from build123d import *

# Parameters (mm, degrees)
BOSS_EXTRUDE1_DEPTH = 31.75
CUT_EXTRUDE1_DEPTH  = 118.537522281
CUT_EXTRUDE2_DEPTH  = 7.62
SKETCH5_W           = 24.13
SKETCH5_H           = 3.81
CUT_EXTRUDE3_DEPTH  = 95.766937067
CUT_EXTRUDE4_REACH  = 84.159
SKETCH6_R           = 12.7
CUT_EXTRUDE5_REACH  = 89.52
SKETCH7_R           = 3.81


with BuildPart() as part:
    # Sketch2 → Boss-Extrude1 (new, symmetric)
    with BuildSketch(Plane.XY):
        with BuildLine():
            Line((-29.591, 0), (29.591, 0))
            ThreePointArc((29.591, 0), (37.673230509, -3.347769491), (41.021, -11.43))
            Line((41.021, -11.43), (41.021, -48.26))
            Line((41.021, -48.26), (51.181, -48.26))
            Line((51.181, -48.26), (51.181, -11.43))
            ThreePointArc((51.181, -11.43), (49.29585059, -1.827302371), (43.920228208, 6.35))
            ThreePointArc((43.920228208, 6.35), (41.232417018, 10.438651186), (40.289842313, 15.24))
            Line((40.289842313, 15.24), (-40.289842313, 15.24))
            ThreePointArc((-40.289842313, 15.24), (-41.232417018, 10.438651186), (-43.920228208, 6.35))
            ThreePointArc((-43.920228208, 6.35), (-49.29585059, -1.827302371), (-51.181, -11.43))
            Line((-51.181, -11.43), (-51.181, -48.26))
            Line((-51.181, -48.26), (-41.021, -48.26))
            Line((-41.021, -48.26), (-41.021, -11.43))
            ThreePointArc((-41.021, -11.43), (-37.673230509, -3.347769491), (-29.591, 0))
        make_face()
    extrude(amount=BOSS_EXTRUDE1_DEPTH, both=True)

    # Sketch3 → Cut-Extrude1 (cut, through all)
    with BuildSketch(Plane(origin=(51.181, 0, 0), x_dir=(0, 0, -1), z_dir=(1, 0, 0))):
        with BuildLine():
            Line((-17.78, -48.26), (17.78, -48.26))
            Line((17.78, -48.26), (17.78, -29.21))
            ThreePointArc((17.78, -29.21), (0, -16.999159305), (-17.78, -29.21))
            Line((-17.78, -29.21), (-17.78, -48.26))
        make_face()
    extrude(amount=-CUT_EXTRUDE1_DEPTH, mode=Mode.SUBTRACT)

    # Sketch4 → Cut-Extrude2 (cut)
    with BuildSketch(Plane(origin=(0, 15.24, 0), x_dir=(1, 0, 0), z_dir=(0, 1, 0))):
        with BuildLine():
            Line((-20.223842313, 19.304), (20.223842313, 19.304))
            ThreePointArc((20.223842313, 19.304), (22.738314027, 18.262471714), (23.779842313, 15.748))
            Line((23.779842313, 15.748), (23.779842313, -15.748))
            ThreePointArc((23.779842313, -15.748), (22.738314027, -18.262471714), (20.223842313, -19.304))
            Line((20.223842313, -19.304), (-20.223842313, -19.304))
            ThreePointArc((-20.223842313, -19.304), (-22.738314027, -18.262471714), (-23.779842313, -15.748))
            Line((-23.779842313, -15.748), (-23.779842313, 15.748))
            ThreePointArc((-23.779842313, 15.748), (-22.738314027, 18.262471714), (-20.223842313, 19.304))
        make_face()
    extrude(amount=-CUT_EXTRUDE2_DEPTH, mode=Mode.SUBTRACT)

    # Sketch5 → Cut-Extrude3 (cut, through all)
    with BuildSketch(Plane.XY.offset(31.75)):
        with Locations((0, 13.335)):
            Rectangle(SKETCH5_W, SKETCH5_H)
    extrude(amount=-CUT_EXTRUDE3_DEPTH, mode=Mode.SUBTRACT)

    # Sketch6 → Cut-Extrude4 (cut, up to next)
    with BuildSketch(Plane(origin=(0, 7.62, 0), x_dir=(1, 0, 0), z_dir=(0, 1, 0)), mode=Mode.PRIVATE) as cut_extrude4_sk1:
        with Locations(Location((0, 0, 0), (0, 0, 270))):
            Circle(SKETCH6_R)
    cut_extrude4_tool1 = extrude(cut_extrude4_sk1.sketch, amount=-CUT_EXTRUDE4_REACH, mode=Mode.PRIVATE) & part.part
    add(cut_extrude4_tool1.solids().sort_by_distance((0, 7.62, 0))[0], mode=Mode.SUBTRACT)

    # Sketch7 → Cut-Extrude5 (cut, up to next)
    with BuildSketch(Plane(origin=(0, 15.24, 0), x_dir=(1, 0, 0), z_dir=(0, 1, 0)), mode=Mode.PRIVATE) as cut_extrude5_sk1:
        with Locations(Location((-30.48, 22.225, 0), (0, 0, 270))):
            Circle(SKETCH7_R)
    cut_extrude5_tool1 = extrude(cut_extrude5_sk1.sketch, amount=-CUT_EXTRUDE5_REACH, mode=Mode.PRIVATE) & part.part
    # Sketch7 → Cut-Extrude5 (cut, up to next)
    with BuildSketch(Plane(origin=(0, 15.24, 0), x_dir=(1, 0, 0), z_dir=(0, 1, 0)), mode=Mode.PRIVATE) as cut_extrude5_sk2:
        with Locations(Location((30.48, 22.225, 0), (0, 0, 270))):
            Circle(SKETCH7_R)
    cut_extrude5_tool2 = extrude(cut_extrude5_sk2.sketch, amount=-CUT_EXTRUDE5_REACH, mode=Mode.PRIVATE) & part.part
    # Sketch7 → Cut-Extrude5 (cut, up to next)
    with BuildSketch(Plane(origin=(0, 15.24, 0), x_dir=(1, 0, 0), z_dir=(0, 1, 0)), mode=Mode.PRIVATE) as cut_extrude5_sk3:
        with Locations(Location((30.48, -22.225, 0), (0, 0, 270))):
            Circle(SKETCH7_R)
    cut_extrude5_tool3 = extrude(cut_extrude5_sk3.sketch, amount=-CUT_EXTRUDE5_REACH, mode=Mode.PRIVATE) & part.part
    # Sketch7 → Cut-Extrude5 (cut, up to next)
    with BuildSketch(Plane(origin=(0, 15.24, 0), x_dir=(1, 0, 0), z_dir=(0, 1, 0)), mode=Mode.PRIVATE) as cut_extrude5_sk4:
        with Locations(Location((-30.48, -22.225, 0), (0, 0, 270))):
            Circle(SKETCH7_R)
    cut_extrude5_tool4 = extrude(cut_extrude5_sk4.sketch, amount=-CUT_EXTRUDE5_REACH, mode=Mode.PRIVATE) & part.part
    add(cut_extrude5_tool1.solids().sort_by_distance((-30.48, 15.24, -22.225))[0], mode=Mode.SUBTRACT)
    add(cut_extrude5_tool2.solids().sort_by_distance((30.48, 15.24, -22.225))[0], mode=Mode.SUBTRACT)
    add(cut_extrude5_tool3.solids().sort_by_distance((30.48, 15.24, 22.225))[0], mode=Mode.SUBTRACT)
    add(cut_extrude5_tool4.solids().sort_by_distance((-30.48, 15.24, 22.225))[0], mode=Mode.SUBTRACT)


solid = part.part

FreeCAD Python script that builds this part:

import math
import FreeCAD as App
import Part
import Sketcher
Q = App.Units.Quantity

doc = App.newDocument("Part")
body = doc.addObject("PartDesign::Body", "Body")

# Sketch on XY plane
sketch1 = body.newObject("Sketcher::SketchObject", "Sketch")
sketch1.AttachmentSupport = (doc.getObject("XY_Plane"), [""])
sketch1.MapMode = "FlatFace"
sketch1.addGeometry([
    Part.LineSegment(App.Vector(-30, 0, 0), App.Vector(30, 0, 0)),  # 0
    Part.ArcOfCircle(Part.Circle(App.Vector(30, -11, 0), App.Vector(0, 0, 1), 11), math.radians(0), math.radians(90)),  # 1
    Part.LineSegment(App.Vector(41, -11, 0), App.Vector(41, -48, 0)),  # 2
    Part.LineSegment(App.Vector(41, -48, 0), App.Vector(51, -48, 0)),  # 3
    Part.LineSegment(App.Vector(51, -48, 0), App.Vector(51, -11, 0)),  # 4
    Part.ArcOfCircle(Part.Circle(App.Vector(26, -11, 0), App.Vector(0, 0, 1), 25), math.radians(0), math.radians(44)),  # 5
    Part.ArcOfCircle(Part.Circle(App.Vector(53, 15, 0), App.Vector(0, 0, 1), 13), math.radians(180), math.radians(224)),  # 6
    Part.LineSegment(App.Vector(40, 15, 0), App.Vector(-40, 15, 0)),  # 7
    Part.ArcOfCircle(Part.Circle(App.Vector(-53, 15, 0), App.Vector(0, 0, 1), 13), math.radians(-44), math.radians(0)),  # 8
    Part.ArcOfCircle(Part.Circle(App.Vector(-26, -11, 0), App.Vector(0, 0, 1), 25), math.radians(136), math.radians(180)),  # 9
    Part.LineSegment(App.Vector(-51, -11, 0), App.Vector(-51, -48, 0)),  # 10
    Part.LineSegment(App.Vector(-51, -48, 0), App.Vector(-41, -48, 0)),  # 11
    Part.LineSegment(App.Vector(-41, -48, 0), App.Vector(-41, -11, 0)),  # 12
    Part.ArcOfCircle(Part.Circle(App.Vector(-30, -11, 0), App.Vector(0, 0, 1), 11), math.radians(90), math.radians(180)),  # 13
], False)
sketch1.addConstraint([
    Sketcher.Constraint("Tangent", 0, 2, 1, 2),
    Sketcher.Constraint("Tangent", 1, 1, 2, 1),
    Sketcher.Constraint("Coincident", 2, 2, 3, 1),
    Sketcher.Constraint("Coincident", 3, 2, 4, 1),
    Sketcher.Constraint("Tangent", 4, 2, 5, 1),
    Sketcher.Constraint("Tangent", 5, 2, 6, 2),
    Sketcher.Constraint("Coincident", 6, 1, 7, 1),
    Sketcher.Constraint("Coincident", 7, 2, 8, 2),
    Sketcher.Constraint("Tangent", 8, 1, 9, 1),
    Sketcher.Constraint("Tangent", 9, 2, 10, 1),
    Sketcher.Constraint("Coincident", 10, 2, 11, 1),
    Sketcher.Constraint("Coincident", 11, 2, 12, 1),
    Sketcher.Constraint("Tangent", 12, 2, 13, 2),
    Sketcher.Constraint("Tangent", 13, 1, 0, 1),
    Sketcher.Constraint("Horizontal", 0),
    Sketcher.Constraint("Vertical", 2),
    Sketcher.Constraint("Horizontal", 3),
    Sketcher.Constraint("Vertical", 4),
    Sketcher.Constraint("Horizontal", 7),
    Sketcher.Constraint("Vertical", 10),
    Sketcher.Constraint("Horizontal", 11),
    Sketcher.Constraint("Vertical", 12),
    Sketcher.Constraint("Equal", 6, 8),
    Sketcher.Constraint("Equal", 5, 9),
    Sketcher.Constraint("Equal", 1, 13),
    Sketcher.Constraint("Symmetric", 0, 2, 13, 1, -1, 1),
    Sketcher.Constraint("Symmetric", 6, 3, 8, 3, -2),
    Sketcher.Constraint("Symmetric", 3, 2, 10, 2, -2),
    Sketcher.Constraint("Horizontal", 1, 3, 5, 3),
    Sketcher.Constraint("Horizontal", 8, 3, 6, 1),
    Sketcher.Constraint("Radius", 5, Q("1 in")),
    Sketcher.Constraint("Radius", 6, Q("0.5 in")),
    Sketcher.Constraint("Radius", 1, Q("0.45 in")),
    Sketcher.Constraint("DistanceX", 3, 1, 3, 2, Q("0.4 in")),
    Sketcher.Constraint("DistanceX", 0, 1, 0, 2, Q("2.33 in")),
    Sketcher.Constraint("DistanceY", 2, 2, 2, 1, Q("1.45 in")),
    Sketcher.Constraint("DistanceY", -1, 1, 6, 3, Q("0.6 in")),
])
pad1 = body.newObject("PartDesign::Pad", "Pad")
pad1.Profile = sketch1
pad1.Length = Q("2.5 in")
pad1.Midplane = True

# Sketch on YZ plane
sketch2 = body.newObject("Sketcher::SketchObject", "Sketch001")
sketch2.AttachmentSupport = (doc.getObject("YZ_Plane"), [""])
sketch2.MapMode = "FlatFace"
sketch2.AttachmentOffset = App.Placement(App.Vector(0, 0, 2.015 * 25.4), App.Rotation())
sketch2.addGeometry([
    Part.LineSegment(App.Vector(-48, 18, 0), App.Vector(-48, -18, 0)),
    Part.LineSegment(App.Vector(-48, -18, 0), App.Vector(-29, -18, 0)),
    Part.ArcOfCircle(Part.Circle(App.Vector(-36, 0, 0), App.Vector(0, 0, 1), 19), math.radians(-69), math.radians(69)),
    Part.LineSegment(App.Vector(-29, 18, 0), App.Vector(-48, 18, 0)),
], False)
sketch2.addConstraint([
    Sketcher.Constraint("Coincident", 0, 2, 1, 1),
    Sketcher.Constraint("Coincident", 1, 2, 2, 1),
    Sketcher.Constraint("Coincident", 2, 2, 3, 1),
    Sketcher.Constraint("Coincident", 3, 2, 0, 1),
    Sketcher.Constraint("Vertical", 0),
    Sketcher.Constraint("Horizontal", 1),
    Sketcher.Constraint("Horizontal", 3),
    Sketcher.Constraint("Symmetric", 1, 2, 2, 2, -1),
    Sketcher.Constraint("Radius", 2, Q("0.75 in")),
    Sketcher.Constraint("DistanceY", 0, 2, 0, 1, Q("1.4 in")),
    Sketcher.Constraint("DistanceX", 1, 1, 1, 2, Q("0.75 in")),
    Sketcher.Constraint("DistanceX", 0, 2, -1, 1, Q("1.9 in")),
])
pocket1 = body.newObject("PartDesign::Pocket", "Pocket")
pocket1.Profile = sketch2
pocket1.Type = "ThroughAll"

# Sketch on XZ plane
sketch3 = body.newObject("Sketcher::SketchObject", "Sketch002")
sketch3.AttachmentSupport = (doc.getObject("XZ_Plane"), [""])
sketch3.MapMode = "FlatFace"
sketch3.AttachmentOffset = App.Placement(App.Vector(0, 0, -0.6 * 25.4), App.Rotation())
sketch3.addGeometry([
    Part.LineSegment(App.Vector(20.2, -19.3, 0), App.Vector(-20.2, -19.3, 0)),  # 0
    Part.ArcOfCircle(Part.Circle(App.Vector(-20.2, -15.7, 0), App.Vector(0, 0, 1), 3.6), math.radians(180), math.radians(270)),  # 1
    Part.LineSegment(App.Vector(-23.8, -15.7, 0), App.Vector(-23.8, 15.7, 0)),  # 2
    Part.ArcOfCircle(Part.Circle(App.Vector(-20.2, 15.7, 0), App.Vector(0, 0, 1), 3.6), math.radians(90), math.radians(180)),  # 3
    Part.LineSegment(App.Vector(-20.2, 19.3, 0), App.Vector(20.2, 19.3, 0)),  # 4
    Part.ArcOfCircle(Part.Circle(App.Vector(20.2, 15.7, 0), App.Vector(0, 0, 1), 3.6), math.radians(0), math.radians(90)),  # 5
    Part.LineSegment(App.Vector(23.8, 15.7, 0), App.Vector(23.8, -15.7, 0)),  # 6
    Part.ArcOfCircle(Part.Circle(App.Vector(20.2, -15.7, 0), App.Vector(0, 0, 1), 3.6), math.radians(-90), math.radians(0)),  # 7
], False)
sketch3.addConstraint([
    Sketcher.Constraint("Tangent", 0, 2, 1, 2),
    Sketcher.Constraint("Tangent", 1, 1, 2, 1),
    Sketcher.Constraint("Tangent", 2, 2, 3, 2),
    Sketcher.Constraint("Tangent", 3, 1, 4, 1),
    Sketcher.Constraint("Tangent", 4, 2, 5, 2),
    Sketcher.Constraint("Tangent", 5, 1, 6, 1),
    Sketcher.Constraint("Tangent", 6, 2, 7, 2),
    Sketcher.Constraint("Tangent", 7, 1, 0, 1),
    Sketcher.Constraint("Horizontal", 0),
    Sketcher.Constraint("Vertical", 2),
    Sketcher.Constraint("Horizontal", 4),
    Sketcher.Constraint("Vertical", 6),
    Sketcher.Constraint("Equal", 1, 3),
    Sketcher.Constraint("Equal", 3, 5),
    Sketcher.Constraint("Equal", 5, 7),
    Sketcher.Constraint("Symmetric", 1, 3, 5, 3, -1, 1),
    Sketcher.Constraint("Radius", 1, Q("0.14 in")),
    Sketcher.Constraint("DistanceY", 2, 1, 2, 2, Q("1.24 in")),
    Sketcher.Constraint("DistanceX", 0, 2, 0, 1, Q("40.447685 mm")),
])
pocket2 = body.newObject("PartDesign::Pocket", "Pocket001")
pocket2.Profile = sketch3
pocket2.Length = Q("0.3 in")
pocket2.Reversed = True

# Sketch on XY plane
sketch4 = body.newObject("Sketcher::SketchObject", "Sketch003")
sketch4.AttachmentSupport = (doc.getObject("XY_Plane"), [""])
sketch4.MapMode = "FlatFace"
sketch4.AttachmentOffset = App.Placement(App.Vector(0, 0, 1.25 * 25.4), App.Rotation())
sketch4.addGeometry([
    Part.LineSegment(App.Vector(-12.1, 15.2, 0), App.Vector(-12.1, 11.4, 0)),
    Part.LineSegment(App.Vector(-12.1, 11.4, 0), App.Vector(12.1, 11.4, 0)),
    Part.LineSegment(App.Vector(12.1, 11.4, 0), App.Vector(12.1, 15.2, 0)),
    Part.LineSegment(App.Vector(12.1, 15.2, 0), App.Vector(-12.1, 15.2, 0)),
], False)
sketch4.addConstraint([
    Sketcher.Constraint("Coincident", 0, 2, 1, 1),
    Sketcher.Constraint("Coincident", 1, 2, 2, 1),
    Sketcher.Constraint("Coincident", 2, 2, 3, 1),
    Sketcher.Constraint("Coincident", 3, 2, 0, 1),
    Sketcher.Constraint("Vertical", 0),
    Sketcher.Constraint("Horizontal", 1),
    Sketcher.Constraint("Vertical", 2),
    Sketcher.Constraint("Horizontal", 3),
    Sketcher.Constraint("DistanceX", 1, 1, 1, 2, Q("0.95 in")),
    Sketcher.Constraint("DistanceY", 0, 2, 0, 1, Q("0.15 in")),
    Sketcher.Constraint("DistanceY", -1, 1, 2, 2, Q("0.6 in")),
    Sketcher.Constraint("DistanceX", 0, 2, -1, 1, Q("0.475 in")),
])
pocket3 = body.newObject("PartDesign::Pocket", "Pocket002")
pocket3.Profile = sketch4
pocket3.Type = "ThroughAll"

# Sketch on XZ plane
sketch5 = body.newObject("Sketcher::SketchObject", "Sketch004")
sketch5.AttachmentSupport = (doc.getObject("XZ_Plane"), [""])
sketch5.MapMode = "FlatFace"
sketch5.AttachmentOffset = App.Placement(App.Vector(0, 0, -0.3 * 25.4), App.Rotation())
sketch5.addGeometry(Part.Circle(App.Vector(0, 0, 0), App.Vector(0, 0, 1), 13), False)
sketch5.addConstraint([
    Sketcher.Constraint("Coincident", 0, 3, -1, 1),
    Sketcher.Constraint("Diameter", 0, Q("1 in")),
])
pocket4 = body.newObject("PartDesign::Pocket", "Pocket003")
pocket4.Profile = sketch5
pocket4.Type = "UpToFirst"
pocket4.Reversed = True

# Sketch on XZ plane
sketch6 = body.newObject("Sketcher::SketchObject", "Sketch005")
sketch6.AttachmentSupport = (doc.getObject("XZ_Plane"), [""])
sketch6.MapMode = "FlatFace"
sketch6.AttachmentOffset = App.Placement(App.Vector(0, 0, -0.6 * 25.4), App.Rotation())
sketch6.addGeometry(Part.Circle(App.Vector(-30.5, -22.2, 0), App.Vector(0, 0, 1), 3.8), False)
sketch6.addConstraint([
    Sketcher.Constraint("Diameter", 0, Q("0.3 in")),
    Sketcher.Constraint("DistanceX", 0, 3, -1, 1, Q("1.2 in")),
    Sketcher.Constraint("DistanceY", 0, 3, -1, 1, Q("0.875 in")),
])
pocket5 = body.newObject("PartDesign::Pocket", "Pocket004")
pocket5.Profile = sketch6
pocket5.Type = "UpToFirst"
pocket5.Reversed = True

# Sketch on XZ plane
sketch7 = body.newObject("Sketcher::SketchObject", "Sketch006")
sketch7.AttachmentSupport = (doc.getObject("XZ_Plane"), [""])
sketch7.MapMode = "FlatFace"
sketch7.AttachmentOffset = App.Placement(App.Vector(0, 0, -0.6 * 25.4), App.Rotation())
sketch7.addGeometry(Part.Circle(App.Vector(30.5, -22.2, 0), App.Vector(0, 0, 1), 3.8), False)
sketch7.addConstraint([
    Sketcher.Constraint("Diameter", 0, Q("0.3 in")),
    Sketcher.Constraint("DistanceX", -1, 1, 0, 3, Q("1.2 in")),
    Sketcher.Constraint("DistanceY", 0, 3, -1, 1, Q("0.875 in")),
])
pocket6 = body.newObject("PartDesign::Pocket", "Pocket005")
pocket6.Profile = sketch7
pocket6.Type = "UpToFirst"
pocket6.Reversed = True

# Sketch on XZ plane
sketch8 = body.newObject("Sketcher::SketchObject", "Sketch007")
sketch8.AttachmentSupport = (doc.getObject("XZ_Plane"), [""])
sketch8.MapMode = "FlatFace"
sketch8.AttachmentOffset = App.Placement(App.Vector(0, 0, -0.6 * 25.4), App.Rotation())
sketch8.addGeometry(Part.Circle(App.Vector(30.5, 22.2, 0), App.Vector(0, 0, 1), 3.8), False)
sketch8.addConstraint([
    Sketcher.Constraint("Diameter", 0, Q("0.3 in")),
    Sketcher.Constraint("DistanceX", -1, 1, 0, 3, Q("1.2 in")),
    Sketcher.Constraint("DistanceY", -1, 1, 0, 3, Q("0.875 in")),
])
pocket7 = body.newObject("PartDesign::Pocket", "Pocket006")
pocket7.Profile = sketch8
pocket7.Type = "UpToFirst"
pocket7.Reversed = True

# Sketch on XZ plane
sketch9 = body.newObject("Sketcher::SketchObject", "Sketch008")
sketch9.AttachmentSupport = (doc.getObject("XZ_Plane"), [""])
sketch9.MapMode = "FlatFace"
sketch9.AttachmentOffset = App.Placement(App.Vector(0, 0, -0.6 * 25.4), App.Rotation())
sketch9.addGeometry(Part.Circle(App.Vector(-30.5, 22.2, 0), App.Vector(0, 0, 1), 3.8), False)
sketch9.addConstraint([
    Sketcher.Constraint("Diameter", 0, Q("0.3 in")),
    Sketcher.Constraint("DistanceX", 0, 3, -1, 1, Q("1.2 in")),
    Sketcher.Constraint("DistanceY", -1, 1, 0, 3, Q("0.875 in")),
])
pocket8 = body.newObject("PartDesign::Pocket", "Pocket007")
pocket8.Profile = sketch9
pocket8.Type = "UpToFirst"
pocket8.Reversed = True

doc.recompute()
